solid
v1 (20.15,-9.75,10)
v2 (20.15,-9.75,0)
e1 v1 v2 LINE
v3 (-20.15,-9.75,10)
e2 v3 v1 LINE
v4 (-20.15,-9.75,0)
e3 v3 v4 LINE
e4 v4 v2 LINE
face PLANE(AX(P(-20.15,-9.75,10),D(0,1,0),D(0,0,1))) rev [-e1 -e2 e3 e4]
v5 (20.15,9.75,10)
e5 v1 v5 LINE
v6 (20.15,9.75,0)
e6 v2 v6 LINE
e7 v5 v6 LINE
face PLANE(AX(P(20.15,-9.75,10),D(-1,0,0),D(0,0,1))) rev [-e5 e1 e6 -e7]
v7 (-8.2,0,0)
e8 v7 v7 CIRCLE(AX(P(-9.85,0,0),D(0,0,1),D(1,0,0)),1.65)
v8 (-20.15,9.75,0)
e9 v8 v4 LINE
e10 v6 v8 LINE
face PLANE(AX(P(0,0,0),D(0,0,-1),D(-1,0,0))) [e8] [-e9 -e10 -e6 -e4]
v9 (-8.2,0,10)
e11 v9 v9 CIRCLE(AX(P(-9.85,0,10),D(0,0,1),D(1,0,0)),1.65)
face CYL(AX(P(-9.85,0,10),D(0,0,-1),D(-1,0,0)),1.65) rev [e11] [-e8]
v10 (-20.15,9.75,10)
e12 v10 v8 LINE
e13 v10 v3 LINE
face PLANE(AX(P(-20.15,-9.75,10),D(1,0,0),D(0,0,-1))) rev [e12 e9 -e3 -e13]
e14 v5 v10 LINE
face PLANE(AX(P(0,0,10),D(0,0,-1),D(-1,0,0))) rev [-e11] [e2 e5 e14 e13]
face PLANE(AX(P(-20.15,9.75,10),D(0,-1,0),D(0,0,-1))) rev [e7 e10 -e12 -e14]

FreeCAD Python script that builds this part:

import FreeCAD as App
import Part
import Sketcher

V = App.Vector
Q = App.Units.Quantity

doc = App.newDocument("Part")
body = doc.addObject("PartDesign::Body", "Body")

# Sketch on XY plane
sketch1 = body.newObject("Sketcher::SketchObject", "Sketch")
sketch1.AttachmentSupport = (doc.getObject("XY_Plane"), [""])
sketch1.MapMode = "FlatFace"
sketch1.addGeometry(Part.LineSegment(V(-20.15, 9.75, 0), V(-20.15, -9.75, 0)), False)
sketch1.addGeometry(Part.LineSegment(V(-20.15, -9.75, 0), V(20.15, -9.75, 0)), False)
sketch1.addGeometry(Part.LineSegment(V(20.15, -9.75, 0), V(20.15, 9.75, 0)), False)
sketch1.addGeometry(Part.LineSegment(V(20.15, 9.75, 0), V(-20.15, 9.75, 0)), False)
sketch1.addGeometry(Part.Circle(V(-9.85, 0, 0), V(0, 0, 1), 1.65), False)
sketch1.addConstraint(Sketcher.Constraint("Coincident", 0, 2, 1, 1))
sketch1.addConstraint(Sketcher.Constraint("Coincident", 1, 2, 2, 1))
sketch1.addConstraint(Sketcher.Constraint("Coincident", 2, 2, 3, 1))
sketch1.addConstraint(Sketcher.Constraint("Coincident", 3, 2, 0, 1))
sketch1.addConstraint(Sketcher.Constraint("Vertical", 0))
sketch1.addConstraint(Sketcher.Constraint("Horizontal", 1))
sketch1.addConstraint(Sketcher.Constraint("Vertical", 2))
sketch1.addConstraint(Sketcher.Constraint("Horizontal", 3))
sketch1.addConstraint(Sketcher.Constraint("Symmetric", 0, 2, 2, 2, -1, 1))
sketch1.addConstraint(Sketcher.Constraint("PointOnObject", 4, 3, -1))
sketch1.addConstraint(Sketcher.Constraint("Diameter", 4, Q("3.3 mm")))
sketch1.addConstraint(Sketcher.Constraint("DistanceX", 1, 1, 1, 2, Q("40.3 mm")))
sketch1.addConstraint(Sketcher.Constraint("DistanceY", 0, 2, 0, 1, Q("19.5 mm")))
sketch1.addConstraint(Sketcher.Constraint("DistanceX", 4, 3, 1, 2, Q("30 mm")))
pad1 = body.newObject("PartDesign::Pad", "Pad")
pad1.Profile = sketch1
pad1.Length = 10

doc.recompute()
